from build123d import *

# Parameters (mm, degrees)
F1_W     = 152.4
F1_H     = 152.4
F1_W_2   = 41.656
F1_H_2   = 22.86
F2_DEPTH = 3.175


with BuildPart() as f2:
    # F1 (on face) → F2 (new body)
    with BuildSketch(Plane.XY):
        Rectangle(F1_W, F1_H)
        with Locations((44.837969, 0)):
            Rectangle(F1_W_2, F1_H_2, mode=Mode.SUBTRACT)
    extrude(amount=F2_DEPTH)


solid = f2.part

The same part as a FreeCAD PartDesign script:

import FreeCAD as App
import Part
import Sketcher
Q = App.Units.Quantity


def add_polygon(sketch, points):
    """Adds a closed chain of lines whose ends are joined by coincident constraints."""
    first, n = sketch.GeometryCount, len(points)
    for a, b in zip(points, points[1:] + points[:1]):
        sketch.addGeometry(Part.LineSegment(App.Vector(*a, 0), App.Vector(*b, 0)), False)
    for i in range(n):
        sketch.addConstraint(Sketcher.Constraint("Coincident", first + i, 2, first + (i + 1) % n, 1))

doc = App.newDocument("Part")
body = doc.addObject("PartDesign::Body", "Body")

# Sketch on XY plane
sketch1 = doc.addObject("Sketcher::SketchObject", "Sketch")
body.addObject(sketch1)
sketch1.AttachmentSupport = (doc.XY_Plane, [""])
sketch1.MapMode = "FlatFace"
add_polygon(sketch1, [(-76, 76), (-76, -76), (76, -76), (76, 76)])  # lines 0-3
add_polygon(sketch1, [(66, -11), (24, -11), (24, 11), (66, 11)])  # lines 4-7
sketch1.addConstraint(Sketcher.Constraint("Vertical", 0))
sketch1.addConstraint(Sketcher.Constraint("Horizontal", 1))
sketch1.addConstraint(Sketcher.Constraint("Vertical", 2))
sketch1.addConstraint(Sketcher.Constraint("Horizontal", 3))
sketch1.addConstraint(Sketcher.Constraint("Horizontal", 4))
sketch1.addConstraint(Sketcher.Constraint("Vertical", 5))
sketch1.addConstraint(Sketcher.Constraint("Horizontal", 6))
sketch1.addConstraint(Sketcher.Constraint("Vertical", 7))
sketch1.addConstraint(Sketcher.Constraint("Symmetric", 0, 2, 2, 2, -1, 1))
sketch1.addConstraint(Sketcher.Constraint("Equal", 3, 0))
sketch1.addConstraint(Sketcher.Constraint("DistanceX", 1, 1, 1, 2, Q("6 in")))
sketch1.addConstraint(Sketcher.Constraint("DistanceY", 5, 1, 5, 2, Q("0.9 in")))
sketch1.addConstraint(Sketcher.Constraint("DistanceX", 4, 2, 4, 1, Q("1.64 in")))
sketch1.addConstraint(Sketcher.Constraint("DistanceY", 4, 2, -1, 1, Q("0.45 in")))
sketch1.addConstraint(Sketcher.Constraint("DistanceX", -1, 1, 4, 2, 24.009969))
pad1 = doc.addObject("PartDesign::Pad", "Pad")
body.addObject(pad1)
pad1.Profile = sketch1
pad1.Length = Q("0.125 in")

doc.recompute()
